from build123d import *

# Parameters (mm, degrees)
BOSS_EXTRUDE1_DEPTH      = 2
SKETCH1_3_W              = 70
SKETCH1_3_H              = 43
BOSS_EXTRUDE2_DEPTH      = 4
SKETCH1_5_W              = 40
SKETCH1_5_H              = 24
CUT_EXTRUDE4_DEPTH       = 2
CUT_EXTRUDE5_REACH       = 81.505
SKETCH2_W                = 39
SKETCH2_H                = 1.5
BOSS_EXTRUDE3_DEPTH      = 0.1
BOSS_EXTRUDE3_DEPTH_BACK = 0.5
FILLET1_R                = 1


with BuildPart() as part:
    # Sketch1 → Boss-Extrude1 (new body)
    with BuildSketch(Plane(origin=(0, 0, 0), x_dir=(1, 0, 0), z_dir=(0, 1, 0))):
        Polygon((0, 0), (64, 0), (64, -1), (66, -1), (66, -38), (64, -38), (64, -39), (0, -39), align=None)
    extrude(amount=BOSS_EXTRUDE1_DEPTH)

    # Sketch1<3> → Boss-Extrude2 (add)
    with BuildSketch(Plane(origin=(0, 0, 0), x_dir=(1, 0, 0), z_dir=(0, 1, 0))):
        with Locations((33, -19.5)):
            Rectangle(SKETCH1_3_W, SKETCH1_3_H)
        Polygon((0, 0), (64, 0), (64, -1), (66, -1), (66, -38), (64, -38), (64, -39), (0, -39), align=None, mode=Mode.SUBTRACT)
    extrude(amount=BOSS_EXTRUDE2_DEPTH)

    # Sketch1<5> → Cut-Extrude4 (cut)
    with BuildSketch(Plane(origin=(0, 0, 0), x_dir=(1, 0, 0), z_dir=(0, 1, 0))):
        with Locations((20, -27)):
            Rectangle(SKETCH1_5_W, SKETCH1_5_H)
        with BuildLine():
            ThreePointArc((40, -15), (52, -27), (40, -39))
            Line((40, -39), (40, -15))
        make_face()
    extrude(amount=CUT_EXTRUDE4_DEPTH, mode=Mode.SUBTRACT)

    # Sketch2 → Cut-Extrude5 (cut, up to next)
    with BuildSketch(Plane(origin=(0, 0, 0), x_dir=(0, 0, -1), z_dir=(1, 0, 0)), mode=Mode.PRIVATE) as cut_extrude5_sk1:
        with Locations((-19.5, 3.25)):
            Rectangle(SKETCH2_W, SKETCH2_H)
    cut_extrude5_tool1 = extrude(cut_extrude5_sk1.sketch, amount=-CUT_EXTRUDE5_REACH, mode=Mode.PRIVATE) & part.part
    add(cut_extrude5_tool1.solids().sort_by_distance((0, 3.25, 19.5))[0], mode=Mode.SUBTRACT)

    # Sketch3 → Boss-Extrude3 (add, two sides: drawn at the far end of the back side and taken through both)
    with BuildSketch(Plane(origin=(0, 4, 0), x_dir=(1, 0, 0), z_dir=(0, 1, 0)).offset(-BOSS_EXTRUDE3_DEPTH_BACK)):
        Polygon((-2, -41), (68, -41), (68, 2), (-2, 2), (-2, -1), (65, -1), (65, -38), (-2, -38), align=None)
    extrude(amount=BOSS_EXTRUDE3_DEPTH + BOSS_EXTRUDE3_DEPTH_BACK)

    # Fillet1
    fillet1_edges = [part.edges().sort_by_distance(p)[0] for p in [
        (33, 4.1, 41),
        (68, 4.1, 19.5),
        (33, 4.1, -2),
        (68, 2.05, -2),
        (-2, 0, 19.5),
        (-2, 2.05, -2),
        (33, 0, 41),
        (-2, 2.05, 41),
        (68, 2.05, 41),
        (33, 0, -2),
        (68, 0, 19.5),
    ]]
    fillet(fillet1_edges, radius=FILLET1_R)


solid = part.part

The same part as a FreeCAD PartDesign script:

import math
import FreeCAD as App
import Part
import Sketcher
from FreeCAD import Vector


def edges_at(feature, points):
    """Names of the edges that pass closest to the given points."""
    edges = feature.Shape.Edges
    near = lambda p: min(range(len(edges)), key=lambda i: edges[i].distToShape(Part.Vertex(*p))[0])
    return sorted({f"Edge{near(p) + 1}" for p in points})

doc = App.newDocument("Part")
body = doc.addObject("PartDesign::Body", "Body")

# Sketch on XZ plane
sketch1 = body.newObject("Sketcher::SketchObject", "Sketch")
sketch1.AttachmentSupport = (doc.getObject("XZ_Plane"), [""])
sketch1.MapMode = "FlatFace"
sketch1.addGeometry(Part.LineSegment(Vector(64, 0, 0), Vector(0, 0, 0)), False)
sketch1.addGeometry(Part.LineSegment(Vector(0, 0, 0), Vector(0, 39, 0)), False)
sketch1.addGeometry(Part.LineSegment(Vector(0, 39, 0), Vector(64, 39, 0)), False)
sketch1.addGeometry(Part.LineSegment(Vector(64, 39, 0), Vector(64, 38, 0)), False)
sketch1.addGeometry(Part.LineSegment(Vector(64, 38, 0), Vector(66, 38, 0)), False)
sketch1.addGeometry(Part.LineSegment(Vector(66, 38, 0), Vector(66, 1, 0)), False)
sketch1.addGeometry(Part.LineSegment(Vector(66, 1, 0), Vector(64, 1, 0)), False)
sketch1.addGeometry(Part.LineSegment(Vector(64, 1, 0), Vector(64, 0, 0)), False)
sketch1.addConstraint(Sketcher.Constraint("Coincident", 0, 2, 1, 1))
sketch1.addConstraint(Sketcher.Constraint("Coincident", 1, 2, 2, 1))
sketch1.addConstraint(Sketcher.Constraint("Coincident", 2, 2, 3, 1))
sketch1.addConstraint(Sketcher.Constraint("Coincident", 3, 2, 4, 1))
sketch1.addConstraint(Sketcher.Constraint("Coincident", 4, 2, 5, 1))
sketch1.addConstraint(Sketcher.Constraint("Coincident", 5, 2, 6, 1))
sketch1.addConstraint(Sketcher.Constraint("Coincident", 6, 2, 7, 1))
sketch1.addConstraint(Sketcher.Constraint("Coincident", 7, 2, 0, 1))
sketch1.addConstraint(Sketcher.Constraint("Horizontal", 0))
sketch1.addConstraint(Sketcher.Constraint("Vertical", 1))
sketch1.addConstraint(Sketcher.Constraint("Horizontal", 2))
sketch1.addConstraint(Sketcher.Constraint("Vertical", 3))
sketch1.addConstraint(Sketcher.Constraint("Horizontal", 4))
sketch1.addConstraint(Sketcher.Constraint("Vertical", 5))
sketch1.addConstraint(Sketcher.Constraint("Horizontal", 6))
sketch1.addConstraint(Sketcher.Constraint("Vertical", 7))
sketch1.addConstraint(Sketcher.Constraint("Coincident", 0, 2, -1, 1))
sketch1.addConstraint(Sketcher.Constraint("Vertical", 3, 2, 6, 2))
sketch1.addConstraint(Sketcher.Constraint("Equal", 3, 7))
sketch1.addConstraint(Sketcher.Constraint("DistanceX", 0, 2, 0, 1, 64.0))
sketch1.addConstraint(Sketcher.Constraint("DistanceX", 4, 1, 4, 2, 2.0))
sketch1.addConstraint(Sketcher.Constraint("DistanceY", 1, 1, 1, 2, 39.0))
sketch1.addConstraint(Sketcher.Constraint("DistanceY", 3, 2, 3, 1, 1.0))
pad1 = body.newObject("PartDesign::Pad", "Pad")
pad1.Profile = sketch1
pad1.Length = 2
pad1.Reversed = True

# Sketch on XZ plane
sketch2 = body.newObject("Sketcher::SketchObject", "Sketch001")
sketch2.AttachmentSupport = (doc.getObject("XZ_Plane"), [""])
sketch2.MapMode = "FlatFace"
sketch2.addGeometry(Part.LineSegment(Vector(-2, -2, 0), Vector(-2, 41, 0)), False)
sketch2.addGeometry(Part.LineSegment(Vector(-2, 41, 0), Vector(68, 41, 0)), False)
sketch2.addGeometry(Part.LineSegment(Vector(68, 41, 0), Vector(68, -2, 0)), False)
sketch2.addGeometry(Part.LineSegment(Vector(68, -2, 0), Vector(-2, -2, 0)), False)
sketch2.addGeometry(Part.LineSegment(Vector(0, 39, 0), Vector(0, 0, 0)), False)
sketch2.addGeometry(Part.LineSegment(Vector(0, 0, 0), Vector(64, 0, 0)), False)
sketch2.addGeometry(Part.LineSegment(Vector(64, 0, 0), Vector(64, 1, 0)), False)
sketch2.addGeometry(Part.LineSegment(Vector(64, 1, 0), Vector(66, 1, 0)), False)
sketch2.addGeometry(Part.LineSegment(Vector(66, 1, 0), Vector(66, 38, 0)), False)
sketch2.addGeometry(Part.LineSegment(Vector(66, 38, 0), Vector(64, 38, 0)), False)
sketch2.addGeometry(Part.LineSegment(Vector(64, 38, 0), Vector(64, 39, 0)), False)
sketch2.addGeometry(Part.LineSegment(Vector(64, 39, 0), Vector(0, 39, 0)), False)
sketch2.addConstraint(Sketcher.Constraint("Coincident", 0, 2, 1, 1))
sketch2.addConstraint(Sketcher.Constraint("Coincident", 1, 2, 2, 1))
sketch2.addConstraint(Sketcher.Constraint("Coincident", 2, 2, 3, 1))
sketch2.addConstraint(Sketcher.Constraint("Coincident", 3, 2, 0, 1))
sketch2.addConstraint(Sketcher.Constraint("Coincident", 4, 2, 5, 1))
sketch2.addConstraint(Sketcher.Constraint("Coincident", 5, 2, 6, 1))
sketch2.addConstraint(Sketcher.Constraint("Coincident", 6, 2, 7, 1))
sketch2.addConstraint(Sketcher.Constraint("Coincident", 7, 2, 8, 1))
sketch2.addConstraint(Sketcher.Constraint("Coincident", 8, 2, 9, 1))
sketch2.addConstraint(Sketcher.Constraint("Coincident", 9, 2, 10, 1))
sketch2.addConstraint(Sketcher.Constraint("Coincident", 10, 2, 11, 1))
sketch2.addConstraint(Sketcher.Constraint("Coincident", 11, 2, 4, 1))
sketch2.addConstraint(Sketcher.Constraint("Vertical", 0))
sketch2.addConstraint(Sketcher.Constraint("Horizontal", 1))
sketch2.addConstraint(Sketcher.Constraint("Vertical", 2))
sketch2.addConstraint(Sketcher.Constraint("Horizontal", 3))
sketch2.addConstraint(Sketcher.Constraint("Vertical", 4))
sketch2.addConstraint(Sketcher.Constraint("Horizontal", 5))
sketch2.addConstraint(Sketcher.Constraint("Vertical", 6))
sketch2.addConstraint(Sketcher.Constraint("Horizontal", 7))
sketch2.addConstraint(Sketcher.Constraint("Vertical", 8))
sketch2.addConstraint(Sketcher.Constraint("Horizontal", 9))
sketch2.addConstraint(Sketcher.Constraint("Vertical", 10))
sketch2.addConstraint(Sketcher.Constraint("Horizontal", 11))
sketch2.addConstraint(Sketcher.Constraint("Coincident", 4, 2, -1, 1))
sketch2.addConstraint(Sketcher.Constraint("Vertical", 6, 2, 9, 2))
sketch2.addConstraint(Sketcher.Constraint("Equal", 6, 10))
sketch2.addConstraint(Sketcher.Constraint("DistanceX", 1, 1, 1, 2, 70.0))
sketch2.addConstraint(Sketcher.Constraint("DistanceX", 5, 1, 5, 2, 64.0))
sketch2.addConstraint(Sketcher.Constraint("DistanceX", 7, 1, 7, 2, 2.0))
sketch2.addConstraint(Sketcher.Constraint("DistanceY", 0, 1, 0, 2, 43.0))
sketch2.addConstraint(Sketcher.Constraint("DistanceY", 4, 2, 4, 1, 39.0))
sketch2.addConstraint(Sketcher.Constraint("DistanceY", 6, 1, 6, 2, 1.0))
sketch2.addConstraint(Sketcher.Constraint("DistanceX", 0, 2, -1, 1, 2.0))
sketch2.addConstraint(Sketcher.Constraint("DistanceY", -1, 1, 0, 2, 41.0))
pad2 = body.newObject("PartDesign::Pad", "Pad001")
pad2.Profile = sketch2
pad2.Length = 4
pad2.Reversed = True

# Sketch on XZ plane
sketch3 = body.newObject("Sketcher::SketchObject", "Sketch002")
sketch3.AttachmentSupport = (doc.getObject("XZ_Plane"), [""])
sketch3.MapMode = "FlatFace"
sketch3.addGeometry(Part.LineSegment(Vector(0, 15, 0), Vector(0, 39, 0)), False)
sketch3.addGeometry(Part.LineSegment(Vector(0, 39, 0), Vector(40, 39, 0)), False)
sketch3.addGeometry(Part.ArcOfCircle(Part.Circle(Vector(40, 27, 0), Vector(0, 0, 1), 12), math.radians(-90), math.radians(90)), False)
sketch3.addGeometry(Part.LineSegment(Vector(40, 15, 0), Vector(0, 15, 0)), False)
sketch3.addConstraint(Sketcher.Constraint("Coincident", 0, 2, 1, 1))
sketch3.addConstraint(Sketcher.Constraint("Tangent", 1, 2, 2, 2))
sketch3.addConstraint(Sketcher.Constraint("Tangent", 2, 1, 3, 1))
sketch3.addConstraint(Sketcher.Constraint("Coincident", 3, 2, 0, 1))
sketch3.addConstraint(Sketcher.Constraint("Vertical", 0))
sketch3.addConstraint(Sketcher.Constraint("Horizontal", 1))
sketch3.addConstraint(Sketcher.Constraint("Horizontal", 3))
sketch3.addConstraint(Sketcher.Constraint("PointOnObject", 0, 2, -2))
sketch3.addConstraint(Sketcher.Constraint("Radius", 2, 12.0))
sketch3.addConstraint(Sketcher.Constraint("DistanceX", 1, 1, 1, 2, 40.0))
sketch3.addConstraint(Sketcher.Constraint("DistanceY", -1, 1, 2, 3, 27.0))
pocket1 = body.newObject("PartDesign::Pocket", "Pocket")
pocket1.Profile = sketch3
pocket1.Length = 2

# Sketch on YZ plane
sketch4 = body.newObject("Sketcher::SketchObject", "Sketch003")
sketch4.AttachmentSupport = (doc.getObject("YZ_Plane"), [""])
sketch4.MapMode = "FlatFace"
sketch4.addGeometry(Part.LineSegment(Vector(4, 39, 0), Vector(2.5, 39, 0)), False)
sketch4.addGeometry(Part.LineSegment(Vector(2.5, 39, 0), Vector(2.5, 0, 0)), False)
sketch4.addGeometry(Part.LineSegment(Vector(2.5, 0, 0), Vector(4, 0, 0)), False)
sketch4.addGeometry(Part.LineSegment(Vector(4, 0, 0), Vector(4, 39, 0)), False)
sketch4.addConstraint(Sketcher.Constraint("Coincident", 0, 2, 1, 1))
sketch4.addConstraint(Sketcher.Constraint("Coincident", 1, 2, 2, 1))
sketch4.addConstraint(Sketcher.Constraint("Coincident", 2, 2, 3, 1))
sketch4.addConstraint(Sketcher.Constraint("Coincident", 3, 2, 0, 1))
sketch4.addConstraint(Sketcher.Constraint("Horizontal", 0))
sketch4.addConstraint(Sketcher.Constraint("Vertical", 1))
sketch4.addConstraint(Sketcher.Constraint("Horizontal", 2))
sketch4.addConstraint(Sketcher.Constraint("Vertical", 3))
sketch4.addConstraint(Sketcher.Constraint("PointOnObject", 1, 2, -1))
sketch4.addConstraint(Sketcher.Constraint("DistanceY", 1, 2, 1, 1, 39.0))
sketch4.addConstraint(Sketcher.Constraint("DistanceX", 0, 2, 0, 1, 1.5))
sketch4.addConstraint(Sketcher.Constraint("DistanceX", -1, 1, 2, 2, 4.0))
pocket2 = body.newObject("PartDesign::Pocket", "Pocket001")
pocket2.Profile = sketch4
pocket2.Type = "UpToFirst"

# Sketch on XZ plane
sketch5 = body.newObject("Sketcher::SketchObject", "Sketch004")
sketch5.AttachmentSupport = (doc.getObject("XZ_Plane"), [""])
sketch5.MapMode = "FlatFace"
sketch5.AttachmentOffset = App.Placement(Vector(0, 0, -4), App.Rotation())
sketch5.addGeometry(Part.LineSegment(Vector(-2, 41, 0), Vector(68, 41, 0)), False)
sketch5.addGeometry(Part.LineSegment(Vector(68, 41, 0), Vector(68, -2, 0)), False)
sketch5.addGeometry(Part.LineSegment(Vector(68, -2, 0), Vector(-2, -2, 0)), False)
sketch5.addGeometry(Part.LineSegment(Vector(-2, -2, 0), Vector(-2, 1, 0)), False)
sketch5.addGeometry(Part.LineSegment(Vector(-2, 1, 0), Vector(65, 1, 0)), False)
sketch5.addGeometry(Part.LineSegment(Vector(65, 1, 0), Vector(65, 38, 0)), False)
sketch5.addGeometry(Part.LineSegment(Vector(65, 38, 0), Vector(-2, 38, 0)), False)
sketch5.addGeometry(Part.LineSegment(Vector(-2, 38, 0), Vector(-2, 41, 0)), False)
sketch5.addConstraint(Sketcher.Constraint("Coincident", 0, 2, 1, 1))
sketch5.addConstraint(Sketcher.Constraint("Coincident", 1, 2, 2, 1))
sketch5.addConstraint(Sketcher.Constraint("Coincident", 2, 2, 3, 1))
sketch5.addConstraint(Sketcher.Constraint("Coincident", 3, 2, 4, 1))
sketch5.addConstraint(Sketcher.Constraint("Coincident", 4, 2, 5, 1))
sketch5.addConstraint(Sketcher.Constraint("Coincident", 5, 2, 6, 1))
sketch5.addConstraint(Sketcher.Constraint("Coincident", 6, 2, 7, 1))
sketch5.addConstraint(Sketcher.Constraint("Coincident", 7, 2, 0, 1))
sketch5.addConstraint(Sketcher.Constraint("Horizontal", 0))
sketch5.addConstraint(Sketcher.Constraint("Vertical", 1))
sketch5.addConstraint(Sketcher.Constraint("Horizontal", 2))
sketch5.addConstraint(Sketcher.Constraint("Vertical", 3))
sketch5.addConstraint(Sketcher.Constraint("Horizontal", 4))
sketch5.addConstraint(Sketcher.Constraint("Vertical", 5))
sketch5.addConstraint(Sketcher.Constraint("Horizontal", 6))
sketch5.addConstraint(Sketcher.Constraint("Vertical", 7))
sketch5.addConstraint(Sketcher.Constraint("Vertical", 3, 2, 6, 2))
sketch5.addConstraint(Sketcher.Constraint("Equal", 3, 7))
sketch5.addConstraint(Sketcher.Constraint("DistanceX", 0, 1, 0, 2, 70.0))
sketch5.addConstraint(Sketcher.Constraint("DistanceX", 4, 1, 4, 2, 67.0))
sketch5.addConstraint(Sketcher.Constraint("DistanceY", 1, 2, 1, 1, 43.0))
sketch5.addConstraint(Sketcher.Constraint("DistanceY", 3, 1, 3, 2, 3.0))
sketch5.addConstraint(Sketcher.Constraint("DistanceX", -1, 1, 0, 2, 68.0))
sketch5.addConstraint(Sketcher.Constraint("DistanceY", -1, 1, 0, 2, 41.0))
pad3 = body.newObject("PartDesign::Pad", "Pad002")
pad3.Profile = sketch5
pad3.Type = "TwoLengths"
pad3.Length = 0.1
pad3.Length2 = 0.5
pad3.Reversed = True
doc.recompute()

fillet = body.newObject("PartDesign::Fillet", "Fillet")
fillet.Base = (pad3, edges_at(pad3, [
    (33, 4.1, 41),
    (68, 4.1, 19.5),
    (33, 4.1, -2),
    (68, 2.05, -2),
    (-2, 0, 19.5),
    (-2, 2.05, -2),
    (33, 0, 41),
    (-2, 2.05, 41),
    (68, 2.05, 41),
    (33, 0, -2),
    (68, 0, 19.5),
]))
fillet.Radius = 1

doc.recompute()
